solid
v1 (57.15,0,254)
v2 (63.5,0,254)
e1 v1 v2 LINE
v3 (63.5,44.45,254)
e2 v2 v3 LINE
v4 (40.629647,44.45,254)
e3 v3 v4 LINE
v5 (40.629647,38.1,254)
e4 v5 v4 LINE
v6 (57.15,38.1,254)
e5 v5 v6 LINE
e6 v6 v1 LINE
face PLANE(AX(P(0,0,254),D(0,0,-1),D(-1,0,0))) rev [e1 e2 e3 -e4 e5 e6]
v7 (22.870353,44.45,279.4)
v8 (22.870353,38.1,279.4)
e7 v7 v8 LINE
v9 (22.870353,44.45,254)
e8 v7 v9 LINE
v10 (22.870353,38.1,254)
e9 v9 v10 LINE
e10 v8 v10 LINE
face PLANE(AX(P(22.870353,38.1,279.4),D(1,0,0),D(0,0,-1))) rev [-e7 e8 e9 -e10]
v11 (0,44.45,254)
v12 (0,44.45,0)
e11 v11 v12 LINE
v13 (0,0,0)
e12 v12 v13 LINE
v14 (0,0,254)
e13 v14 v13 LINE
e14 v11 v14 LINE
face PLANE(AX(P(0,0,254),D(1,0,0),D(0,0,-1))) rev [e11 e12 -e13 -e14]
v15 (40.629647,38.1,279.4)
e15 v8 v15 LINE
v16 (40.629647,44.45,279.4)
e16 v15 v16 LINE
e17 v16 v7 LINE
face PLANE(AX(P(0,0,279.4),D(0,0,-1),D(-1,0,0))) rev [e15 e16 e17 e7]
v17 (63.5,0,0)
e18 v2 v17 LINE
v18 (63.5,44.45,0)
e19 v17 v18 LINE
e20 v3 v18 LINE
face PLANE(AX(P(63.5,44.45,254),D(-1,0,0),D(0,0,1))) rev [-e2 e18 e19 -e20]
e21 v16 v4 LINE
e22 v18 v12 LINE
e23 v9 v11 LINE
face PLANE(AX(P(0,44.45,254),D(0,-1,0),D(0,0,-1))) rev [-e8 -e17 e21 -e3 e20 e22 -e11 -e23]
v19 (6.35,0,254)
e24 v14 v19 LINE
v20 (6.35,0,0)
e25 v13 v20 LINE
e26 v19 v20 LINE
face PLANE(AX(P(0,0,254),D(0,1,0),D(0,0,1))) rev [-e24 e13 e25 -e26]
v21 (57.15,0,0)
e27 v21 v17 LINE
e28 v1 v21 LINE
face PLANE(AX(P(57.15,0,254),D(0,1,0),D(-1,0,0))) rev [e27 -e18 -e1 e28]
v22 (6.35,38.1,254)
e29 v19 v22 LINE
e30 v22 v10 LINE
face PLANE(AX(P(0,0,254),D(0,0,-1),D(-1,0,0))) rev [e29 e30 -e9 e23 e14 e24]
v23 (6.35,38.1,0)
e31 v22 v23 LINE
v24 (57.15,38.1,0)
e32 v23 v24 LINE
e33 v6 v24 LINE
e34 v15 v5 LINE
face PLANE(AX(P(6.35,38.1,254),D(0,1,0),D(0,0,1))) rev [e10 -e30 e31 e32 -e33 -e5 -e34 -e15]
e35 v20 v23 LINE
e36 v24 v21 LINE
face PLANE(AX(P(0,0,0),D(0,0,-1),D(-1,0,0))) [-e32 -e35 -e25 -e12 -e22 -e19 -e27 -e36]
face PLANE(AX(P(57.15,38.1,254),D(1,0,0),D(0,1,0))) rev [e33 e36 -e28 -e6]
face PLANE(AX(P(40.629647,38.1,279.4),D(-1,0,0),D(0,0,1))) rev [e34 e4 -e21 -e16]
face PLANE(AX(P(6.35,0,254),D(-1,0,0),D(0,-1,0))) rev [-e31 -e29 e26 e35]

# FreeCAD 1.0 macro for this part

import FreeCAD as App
import Part
import Sketcher
Q = App.Units.Quantity


def add_polygon(sketch, points):
    """Adds a closed chain of lines whose ends are joined by coincident constraints."""
    first, n = sketch.GeometryCount, len(points)
    for a, b in zip(points, points[1:] + points[:1]):
        sketch.addGeometry(Part.LineSegment(App.Vector(*a, 0), App.Vector(*b, 0)), False)
    for i in range(n):
        sketch.addConstraint(Sketcher.Constraint("Coincident", first + i, 2, first + (i + 1) % n, 1))

doc = App.newDocument("Part")
body = doc.addObject("PartDesign::Body", "Body")

sketch1 = body.newObject("Sketcher::SketchObject", "Sketch")
sketch1.AttachmentSupport = (doc.getObject("XY_Plane"), [""])
sketch1.MapMode = "FlatFace"
add_polygon(sketch1, [(0, 0), (6, 0), (6, 38), (57, 38), (57, 0), (64, 0), (64, 44), (0, 44)])
sketch1.addConstraint(Sketcher.Constraint("Horizontal", 0))
sketch1.addConstraint(Sketcher.Constraint("Vertical", 1))
sketch1.addConstraint(Sketcher.Constraint("Horizontal", 2))
sketch1.addConstraint(Sketcher.Constraint("Vertical", 3))
sketch1.addConstraint(Sketcher.Constraint("Horizontal", 4))
sketch1.addConstraint(Sketcher.Constraint("Vertical", 5))
sketch1.addConstraint(Sketcher.Constraint("Horizontal", 6))
sketch1.addConstraint(Sketcher.Constraint("Vertical", 7))
sketch1.addConstraint(Sketcher.Constraint("Coincident", 7, 2, -1, 1))
sketch1.addConstraint(Sketcher.Constraint("PointOnObject", 3, 2, -1))
sketch1.addConstraint(Sketcher.Constraint("Equal", 0, 4))
sketch1.addConstraint(Sketcher.Constraint("DistanceX", 2, 1, 2, 2, Q("2 in")))
sketch1.addConstraint(Sketcher.Constraint("DistanceX", 6, 2, 6, 1, Q("2.5 in")))
sketch1.addConstraint(Sketcher.Constraint("DistanceY", 1, 1, 1, 2, Q("1.5 in")))
sketch1.addConstraint(Sketcher.Constraint("DistanceY", 5, 1, 5, 2, Q("1.75 in")))
pad1 = body.newObject("PartDesign::Pad", "Pad")
pad1.Profile = sketch1
pad1.Length = Q("10 in")

sketch2 = body.newObject("Sketcher::SketchObject", "Sketch001")
sketch2.AttachmentSupport = (doc.getObject("XY_Plane"), [""])
sketch2.MapMode = "FlatFace"
sketch2.AttachmentOffset = App.Placement(App.Vector(0, 0, 10 * 25.4), App.Rotation())
add_polygon(sketch2, [(23, 44), (23, 38), (41, 38), (41, 44)])
sketch2.addConstraint(Sketcher.Constraint("Vertical", 0))
sketch2.addConstraint(Sketcher.Constraint("Horizontal", 1))
sketch2.addConstraint(Sketcher.Constraint("Vertical", 2))
sketch2.addConstraint(Sketcher.Constraint("Horizontal", 3))
sketch2.addConstraint(Sketcher.Constraint("DistanceY", 0, 2, 0, 1, Q("0.25 in")))
sketch2.addConstraint(Sketcher.Constraint("DistanceY", -1, 1, 0, 2, Q("1.5 in")))
sketch2.addConstraint(Sketcher.Constraint("DistanceX", 1, 1, 1, 2, 17.759294))
sketch2.addConstraint(Sketcher.Constraint("DistanceX", -1, 1, 0, 2, 22.870353))
pad2 = body.newObject("PartDesign::Pad", "Pad001")
pad2.Profile = sketch2
pad2.Length = Q("1 in")

doc.recompute()
